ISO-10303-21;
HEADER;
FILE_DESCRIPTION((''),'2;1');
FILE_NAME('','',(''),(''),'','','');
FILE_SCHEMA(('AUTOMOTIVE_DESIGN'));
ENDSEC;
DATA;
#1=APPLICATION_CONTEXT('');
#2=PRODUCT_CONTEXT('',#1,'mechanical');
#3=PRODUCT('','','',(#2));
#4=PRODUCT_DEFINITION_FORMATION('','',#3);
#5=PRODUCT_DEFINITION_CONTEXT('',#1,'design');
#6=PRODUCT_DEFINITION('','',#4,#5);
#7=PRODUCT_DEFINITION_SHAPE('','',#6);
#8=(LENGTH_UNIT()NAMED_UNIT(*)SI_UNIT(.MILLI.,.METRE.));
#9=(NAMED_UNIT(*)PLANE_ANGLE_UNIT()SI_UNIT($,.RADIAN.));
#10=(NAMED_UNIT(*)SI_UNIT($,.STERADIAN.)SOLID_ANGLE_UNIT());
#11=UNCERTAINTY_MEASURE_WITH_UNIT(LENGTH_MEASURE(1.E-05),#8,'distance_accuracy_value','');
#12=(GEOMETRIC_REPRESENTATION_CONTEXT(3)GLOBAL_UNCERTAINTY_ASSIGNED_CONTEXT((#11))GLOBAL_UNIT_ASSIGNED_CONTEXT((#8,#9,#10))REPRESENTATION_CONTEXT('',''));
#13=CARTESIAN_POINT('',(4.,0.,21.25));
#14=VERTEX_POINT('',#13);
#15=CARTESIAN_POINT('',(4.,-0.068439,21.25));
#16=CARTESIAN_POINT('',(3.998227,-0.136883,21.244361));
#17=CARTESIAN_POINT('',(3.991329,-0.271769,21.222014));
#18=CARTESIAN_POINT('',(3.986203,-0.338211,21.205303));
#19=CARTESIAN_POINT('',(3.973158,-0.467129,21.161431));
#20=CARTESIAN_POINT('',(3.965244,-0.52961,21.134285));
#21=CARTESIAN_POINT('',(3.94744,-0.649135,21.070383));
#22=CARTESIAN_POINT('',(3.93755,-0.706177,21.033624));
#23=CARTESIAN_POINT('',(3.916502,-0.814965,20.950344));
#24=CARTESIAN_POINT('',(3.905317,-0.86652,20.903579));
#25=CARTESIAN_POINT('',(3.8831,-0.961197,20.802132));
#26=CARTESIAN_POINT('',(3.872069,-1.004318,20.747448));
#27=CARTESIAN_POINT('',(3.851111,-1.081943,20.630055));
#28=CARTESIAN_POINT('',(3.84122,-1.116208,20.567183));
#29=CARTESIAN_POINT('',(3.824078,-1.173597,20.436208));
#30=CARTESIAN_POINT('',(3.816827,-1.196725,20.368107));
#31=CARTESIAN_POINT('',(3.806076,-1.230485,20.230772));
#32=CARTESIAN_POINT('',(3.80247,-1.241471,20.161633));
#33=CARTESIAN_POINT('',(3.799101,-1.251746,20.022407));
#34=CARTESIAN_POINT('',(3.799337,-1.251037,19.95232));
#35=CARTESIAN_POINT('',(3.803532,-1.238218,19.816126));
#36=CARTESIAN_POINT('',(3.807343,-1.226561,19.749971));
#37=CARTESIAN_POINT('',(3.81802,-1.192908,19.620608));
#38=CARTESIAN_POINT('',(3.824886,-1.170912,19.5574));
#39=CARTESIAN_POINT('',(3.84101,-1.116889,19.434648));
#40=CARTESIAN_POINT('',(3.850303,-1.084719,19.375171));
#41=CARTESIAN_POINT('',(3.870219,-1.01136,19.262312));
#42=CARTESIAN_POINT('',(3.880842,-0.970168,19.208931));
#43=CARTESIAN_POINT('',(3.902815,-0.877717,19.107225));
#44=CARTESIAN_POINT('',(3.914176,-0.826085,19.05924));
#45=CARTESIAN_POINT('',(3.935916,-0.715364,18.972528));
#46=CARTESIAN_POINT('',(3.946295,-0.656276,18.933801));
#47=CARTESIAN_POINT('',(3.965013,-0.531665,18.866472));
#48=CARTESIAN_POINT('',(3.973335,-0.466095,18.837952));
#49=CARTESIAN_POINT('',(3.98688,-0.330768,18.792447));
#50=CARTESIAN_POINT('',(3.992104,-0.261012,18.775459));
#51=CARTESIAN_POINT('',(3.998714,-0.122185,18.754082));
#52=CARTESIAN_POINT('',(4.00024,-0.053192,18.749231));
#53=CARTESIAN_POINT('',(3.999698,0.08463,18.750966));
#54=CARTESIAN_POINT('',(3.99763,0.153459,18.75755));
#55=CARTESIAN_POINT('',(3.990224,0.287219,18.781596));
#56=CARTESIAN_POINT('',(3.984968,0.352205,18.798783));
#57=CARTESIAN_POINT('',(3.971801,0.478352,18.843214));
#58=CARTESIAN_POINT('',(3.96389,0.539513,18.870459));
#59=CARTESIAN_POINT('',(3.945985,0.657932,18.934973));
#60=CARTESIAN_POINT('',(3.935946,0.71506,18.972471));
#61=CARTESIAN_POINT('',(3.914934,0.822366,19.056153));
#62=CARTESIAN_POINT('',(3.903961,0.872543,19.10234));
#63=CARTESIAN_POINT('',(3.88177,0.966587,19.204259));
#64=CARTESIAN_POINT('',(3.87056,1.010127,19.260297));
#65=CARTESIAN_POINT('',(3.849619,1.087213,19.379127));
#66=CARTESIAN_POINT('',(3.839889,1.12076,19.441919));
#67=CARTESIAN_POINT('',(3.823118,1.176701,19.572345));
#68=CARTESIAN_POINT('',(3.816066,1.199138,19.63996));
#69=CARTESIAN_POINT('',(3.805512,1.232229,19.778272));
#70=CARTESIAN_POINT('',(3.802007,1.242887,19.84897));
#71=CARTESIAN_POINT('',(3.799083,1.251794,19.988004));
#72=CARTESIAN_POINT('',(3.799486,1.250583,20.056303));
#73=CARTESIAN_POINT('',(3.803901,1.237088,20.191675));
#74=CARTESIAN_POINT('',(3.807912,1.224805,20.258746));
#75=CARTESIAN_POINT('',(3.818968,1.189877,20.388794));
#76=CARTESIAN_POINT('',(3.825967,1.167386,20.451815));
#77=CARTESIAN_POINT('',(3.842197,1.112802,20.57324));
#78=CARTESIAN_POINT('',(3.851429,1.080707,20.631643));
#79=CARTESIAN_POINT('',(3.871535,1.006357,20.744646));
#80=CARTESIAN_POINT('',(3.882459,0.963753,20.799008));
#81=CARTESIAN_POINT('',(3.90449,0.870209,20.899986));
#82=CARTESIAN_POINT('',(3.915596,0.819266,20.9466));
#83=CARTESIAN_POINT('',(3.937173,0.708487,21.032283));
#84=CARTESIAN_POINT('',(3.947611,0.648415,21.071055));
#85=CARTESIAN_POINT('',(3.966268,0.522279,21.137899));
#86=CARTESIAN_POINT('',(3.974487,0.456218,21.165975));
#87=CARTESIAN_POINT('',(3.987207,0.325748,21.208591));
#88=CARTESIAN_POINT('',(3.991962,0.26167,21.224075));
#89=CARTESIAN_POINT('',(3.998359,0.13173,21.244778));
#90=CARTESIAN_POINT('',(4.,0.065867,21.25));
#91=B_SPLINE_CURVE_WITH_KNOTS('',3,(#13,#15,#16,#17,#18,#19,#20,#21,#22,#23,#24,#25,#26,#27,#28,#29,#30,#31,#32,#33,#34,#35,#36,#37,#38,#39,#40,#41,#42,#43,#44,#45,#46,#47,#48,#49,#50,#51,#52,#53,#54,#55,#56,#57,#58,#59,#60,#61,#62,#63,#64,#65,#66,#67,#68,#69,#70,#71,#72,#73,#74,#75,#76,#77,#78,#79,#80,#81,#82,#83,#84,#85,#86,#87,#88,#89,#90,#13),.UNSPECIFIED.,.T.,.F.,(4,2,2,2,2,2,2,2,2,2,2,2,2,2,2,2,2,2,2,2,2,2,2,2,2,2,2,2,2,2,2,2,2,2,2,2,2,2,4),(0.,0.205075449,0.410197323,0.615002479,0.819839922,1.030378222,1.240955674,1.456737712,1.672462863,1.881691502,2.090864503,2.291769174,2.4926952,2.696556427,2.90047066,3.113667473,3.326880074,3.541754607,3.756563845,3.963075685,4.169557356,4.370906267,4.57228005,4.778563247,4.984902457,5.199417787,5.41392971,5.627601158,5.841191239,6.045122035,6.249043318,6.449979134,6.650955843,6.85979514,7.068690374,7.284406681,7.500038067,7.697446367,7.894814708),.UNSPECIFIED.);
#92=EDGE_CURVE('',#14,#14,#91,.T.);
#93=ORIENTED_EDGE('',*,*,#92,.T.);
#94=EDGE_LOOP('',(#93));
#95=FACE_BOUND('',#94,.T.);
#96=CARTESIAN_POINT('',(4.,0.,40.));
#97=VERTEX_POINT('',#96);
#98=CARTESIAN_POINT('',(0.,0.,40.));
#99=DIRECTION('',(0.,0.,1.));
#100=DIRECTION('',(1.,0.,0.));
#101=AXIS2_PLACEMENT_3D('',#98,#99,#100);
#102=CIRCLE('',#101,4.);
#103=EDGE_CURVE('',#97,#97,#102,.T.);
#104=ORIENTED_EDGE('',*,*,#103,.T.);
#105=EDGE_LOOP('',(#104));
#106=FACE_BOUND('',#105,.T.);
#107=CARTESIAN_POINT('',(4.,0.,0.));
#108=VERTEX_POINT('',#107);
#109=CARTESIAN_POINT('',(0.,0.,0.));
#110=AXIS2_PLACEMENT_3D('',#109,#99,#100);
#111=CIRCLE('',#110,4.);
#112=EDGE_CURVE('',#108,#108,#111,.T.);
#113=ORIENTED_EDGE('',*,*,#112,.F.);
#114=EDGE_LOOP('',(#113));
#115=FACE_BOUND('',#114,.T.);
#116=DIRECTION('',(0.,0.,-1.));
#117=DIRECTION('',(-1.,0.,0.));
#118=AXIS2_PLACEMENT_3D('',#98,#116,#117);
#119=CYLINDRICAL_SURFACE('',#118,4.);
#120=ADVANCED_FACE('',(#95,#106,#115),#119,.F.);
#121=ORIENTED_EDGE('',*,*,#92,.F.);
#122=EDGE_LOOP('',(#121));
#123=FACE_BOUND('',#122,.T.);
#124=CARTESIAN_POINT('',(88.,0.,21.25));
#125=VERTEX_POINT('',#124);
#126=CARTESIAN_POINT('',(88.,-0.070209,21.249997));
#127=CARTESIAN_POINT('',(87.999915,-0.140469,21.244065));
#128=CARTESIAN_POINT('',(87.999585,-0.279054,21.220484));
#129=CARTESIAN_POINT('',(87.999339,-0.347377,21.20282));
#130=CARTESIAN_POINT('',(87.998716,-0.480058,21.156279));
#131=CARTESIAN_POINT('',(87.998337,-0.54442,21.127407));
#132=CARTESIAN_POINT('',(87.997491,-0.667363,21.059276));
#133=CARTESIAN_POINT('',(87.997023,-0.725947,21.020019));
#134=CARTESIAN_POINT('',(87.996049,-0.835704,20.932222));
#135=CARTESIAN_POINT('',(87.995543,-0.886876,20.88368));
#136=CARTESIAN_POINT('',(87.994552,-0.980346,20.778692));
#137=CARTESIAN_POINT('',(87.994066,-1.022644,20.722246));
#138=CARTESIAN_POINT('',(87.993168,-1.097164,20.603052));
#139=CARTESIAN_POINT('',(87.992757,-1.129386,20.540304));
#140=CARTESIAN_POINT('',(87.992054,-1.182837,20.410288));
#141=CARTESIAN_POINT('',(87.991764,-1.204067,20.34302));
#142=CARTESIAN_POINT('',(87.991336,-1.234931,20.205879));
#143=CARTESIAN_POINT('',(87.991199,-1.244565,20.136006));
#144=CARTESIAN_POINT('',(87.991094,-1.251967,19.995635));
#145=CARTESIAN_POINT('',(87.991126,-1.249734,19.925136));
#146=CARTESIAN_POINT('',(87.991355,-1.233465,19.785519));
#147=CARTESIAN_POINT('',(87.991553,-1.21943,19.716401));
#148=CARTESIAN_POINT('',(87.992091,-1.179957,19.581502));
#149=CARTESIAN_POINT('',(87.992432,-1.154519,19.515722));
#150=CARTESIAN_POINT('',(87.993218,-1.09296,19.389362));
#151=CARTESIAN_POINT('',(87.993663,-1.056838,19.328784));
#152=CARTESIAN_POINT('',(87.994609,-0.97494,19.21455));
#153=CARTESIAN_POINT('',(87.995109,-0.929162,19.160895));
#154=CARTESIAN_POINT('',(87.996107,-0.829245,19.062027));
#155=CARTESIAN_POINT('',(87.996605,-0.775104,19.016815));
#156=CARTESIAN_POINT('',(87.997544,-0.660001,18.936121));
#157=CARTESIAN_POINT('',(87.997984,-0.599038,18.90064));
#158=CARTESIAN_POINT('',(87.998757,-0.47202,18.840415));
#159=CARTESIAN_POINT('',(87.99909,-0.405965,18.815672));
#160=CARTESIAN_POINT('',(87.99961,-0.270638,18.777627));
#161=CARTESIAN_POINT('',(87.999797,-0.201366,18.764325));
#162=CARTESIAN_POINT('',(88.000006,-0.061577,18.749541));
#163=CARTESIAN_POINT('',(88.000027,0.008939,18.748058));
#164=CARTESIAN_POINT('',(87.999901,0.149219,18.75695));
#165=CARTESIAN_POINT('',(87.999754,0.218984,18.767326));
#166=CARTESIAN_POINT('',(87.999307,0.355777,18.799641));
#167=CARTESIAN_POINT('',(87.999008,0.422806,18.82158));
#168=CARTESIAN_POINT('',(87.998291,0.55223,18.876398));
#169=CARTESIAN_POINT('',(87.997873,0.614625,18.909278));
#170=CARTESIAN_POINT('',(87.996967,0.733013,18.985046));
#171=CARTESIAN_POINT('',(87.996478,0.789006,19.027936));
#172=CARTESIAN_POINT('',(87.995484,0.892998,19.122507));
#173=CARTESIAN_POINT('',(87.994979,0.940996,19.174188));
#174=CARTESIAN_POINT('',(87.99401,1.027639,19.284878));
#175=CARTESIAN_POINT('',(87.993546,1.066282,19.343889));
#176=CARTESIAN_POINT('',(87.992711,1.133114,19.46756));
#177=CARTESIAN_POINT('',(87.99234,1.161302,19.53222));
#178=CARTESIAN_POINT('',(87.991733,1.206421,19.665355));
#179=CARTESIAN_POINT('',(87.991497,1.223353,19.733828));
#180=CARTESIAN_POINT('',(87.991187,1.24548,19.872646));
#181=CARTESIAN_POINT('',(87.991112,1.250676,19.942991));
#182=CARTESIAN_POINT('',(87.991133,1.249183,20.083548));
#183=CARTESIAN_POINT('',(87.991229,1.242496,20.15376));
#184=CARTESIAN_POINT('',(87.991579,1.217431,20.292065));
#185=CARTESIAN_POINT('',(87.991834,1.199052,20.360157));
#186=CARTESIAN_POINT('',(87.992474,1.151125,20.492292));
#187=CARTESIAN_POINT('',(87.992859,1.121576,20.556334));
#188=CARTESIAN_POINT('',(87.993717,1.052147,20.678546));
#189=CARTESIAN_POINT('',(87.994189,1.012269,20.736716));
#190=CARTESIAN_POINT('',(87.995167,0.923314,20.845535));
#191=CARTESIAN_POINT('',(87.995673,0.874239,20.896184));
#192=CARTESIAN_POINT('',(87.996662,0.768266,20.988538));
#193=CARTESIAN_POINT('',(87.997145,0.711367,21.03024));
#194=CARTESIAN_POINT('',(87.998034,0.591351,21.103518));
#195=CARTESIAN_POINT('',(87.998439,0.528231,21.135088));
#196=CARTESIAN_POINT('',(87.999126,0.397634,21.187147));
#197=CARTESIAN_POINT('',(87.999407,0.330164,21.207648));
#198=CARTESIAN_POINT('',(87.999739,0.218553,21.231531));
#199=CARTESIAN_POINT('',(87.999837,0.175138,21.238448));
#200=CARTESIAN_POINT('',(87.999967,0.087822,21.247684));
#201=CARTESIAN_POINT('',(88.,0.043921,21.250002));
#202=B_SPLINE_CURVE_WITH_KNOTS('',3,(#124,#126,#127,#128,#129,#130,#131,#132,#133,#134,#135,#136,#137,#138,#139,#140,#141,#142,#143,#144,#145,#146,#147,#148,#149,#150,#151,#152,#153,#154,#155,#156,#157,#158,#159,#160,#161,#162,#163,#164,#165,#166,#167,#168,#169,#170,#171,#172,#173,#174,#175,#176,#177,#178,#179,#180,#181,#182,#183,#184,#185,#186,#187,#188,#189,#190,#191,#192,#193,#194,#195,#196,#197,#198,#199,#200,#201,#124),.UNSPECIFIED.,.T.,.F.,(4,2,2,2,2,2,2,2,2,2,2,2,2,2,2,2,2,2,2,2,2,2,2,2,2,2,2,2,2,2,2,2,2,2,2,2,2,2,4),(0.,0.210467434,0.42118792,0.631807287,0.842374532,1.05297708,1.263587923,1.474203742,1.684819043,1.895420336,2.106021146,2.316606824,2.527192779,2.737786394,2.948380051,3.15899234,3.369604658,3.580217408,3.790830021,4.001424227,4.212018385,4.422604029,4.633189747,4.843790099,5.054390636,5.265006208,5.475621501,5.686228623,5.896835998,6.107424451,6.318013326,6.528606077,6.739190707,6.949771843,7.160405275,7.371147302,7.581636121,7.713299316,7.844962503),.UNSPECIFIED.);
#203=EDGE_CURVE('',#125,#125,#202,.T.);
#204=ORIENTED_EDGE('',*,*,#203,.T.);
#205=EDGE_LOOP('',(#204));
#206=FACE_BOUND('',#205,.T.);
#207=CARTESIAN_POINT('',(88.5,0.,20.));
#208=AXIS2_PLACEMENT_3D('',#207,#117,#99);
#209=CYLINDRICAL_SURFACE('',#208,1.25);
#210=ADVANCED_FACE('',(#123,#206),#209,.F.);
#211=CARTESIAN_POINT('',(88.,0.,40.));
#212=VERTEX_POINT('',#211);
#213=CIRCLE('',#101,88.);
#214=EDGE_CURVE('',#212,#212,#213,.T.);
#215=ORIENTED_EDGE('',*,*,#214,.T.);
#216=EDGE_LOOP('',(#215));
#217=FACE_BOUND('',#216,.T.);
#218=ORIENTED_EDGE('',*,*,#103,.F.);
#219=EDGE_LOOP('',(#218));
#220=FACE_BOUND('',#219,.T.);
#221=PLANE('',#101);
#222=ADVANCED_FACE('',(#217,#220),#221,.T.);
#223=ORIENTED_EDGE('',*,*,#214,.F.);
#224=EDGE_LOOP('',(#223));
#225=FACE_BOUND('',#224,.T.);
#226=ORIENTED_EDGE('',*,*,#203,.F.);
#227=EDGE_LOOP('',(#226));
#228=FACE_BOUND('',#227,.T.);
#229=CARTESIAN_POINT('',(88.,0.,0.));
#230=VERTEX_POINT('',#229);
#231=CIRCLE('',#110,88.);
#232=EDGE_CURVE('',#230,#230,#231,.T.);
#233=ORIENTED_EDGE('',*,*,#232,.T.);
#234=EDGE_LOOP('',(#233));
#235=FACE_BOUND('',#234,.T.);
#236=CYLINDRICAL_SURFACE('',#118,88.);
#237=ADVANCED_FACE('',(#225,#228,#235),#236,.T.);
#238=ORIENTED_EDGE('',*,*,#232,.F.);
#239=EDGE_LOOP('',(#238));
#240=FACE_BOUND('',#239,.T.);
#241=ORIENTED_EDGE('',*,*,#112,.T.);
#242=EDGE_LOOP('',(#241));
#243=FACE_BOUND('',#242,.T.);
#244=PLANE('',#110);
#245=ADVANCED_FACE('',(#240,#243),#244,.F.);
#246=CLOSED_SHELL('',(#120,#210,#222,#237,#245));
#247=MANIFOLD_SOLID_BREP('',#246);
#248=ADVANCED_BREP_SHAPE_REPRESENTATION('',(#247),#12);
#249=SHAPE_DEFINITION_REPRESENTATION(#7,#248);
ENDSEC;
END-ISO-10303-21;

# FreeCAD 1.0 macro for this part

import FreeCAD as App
import Part
import Sketcher
from FreeCAD import Vector
Q = App.Units.Quantity

doc = App.newDocument("Part")
params = doc.addObject("Spreadsheet::Sheet", "Params")
for row, (alias, value) in enumerate([
    ("sketch1_diameter", "176 mm"),
    ("pad1_length", "40 mm"),
    ("sketch2_diameter", "8 mm"),
    ("pocket1_length", "40 mm"),
    ("sketch3_diameter", "2.5 mm"),
    ("pocket2_length", "85 mm"),
], start=1):
    params.set(f"A{row}", alias)
    params.set(f"B{row}", "=" + value)
    params.setAlias(f"B{row}", alias)

body = doc.addObject("PartDesign::Body", "Body")

sketch1 = doc.addObject("Sketcher::SketchObject", "Sketch")
body.addObject(sketch1)
sketch1.AttachmentSupport = (doc.XY_Plane, [""])
sketch1.MapMode = "FlatFace"
sketch1.addGeometry(Part.Circle(Vector(0, 0, 0), Vector(0, 0, 1), 88), False)
sketch1.addConstraint([
    Sketcher.Constraint("Coincident", 0, 3, -1, 1),
    Sketcher.Constraint("Diameter", 0, Q("176 mm")),
])
sketch1.setExpression("Constraints[1]", "Params.sketch1_diameter")
pad1 = doc.addObject("PartDesign::Pad", "Pad")
body.addObject(pad1)
pad1.Profile = sketch1
pad1.setExpression("Length", "Params.pad1_length")

sketch2 = doc.addObject("Sketcher::SketchObject", "Sketch001")
body.addObject(sketch2)
sketch2.AttachmentSupport = (doc.XY_Plane, [""])
sketch2.MapMode = "FlatFace"
sketch2.addGeometry(Part.Circle(Vector(0, 0, 0), Vector(0, 0, 1), 4), False)
sketch2.addConstraint([
    Sketcher.Constraint("Coincident", 0, 3, -1, 1),
    Sketcher.Constraint("Diameter", 0, Q("8 mm")),
])
sketch2.setExpression("Constraints[1]", "Params.sketch2_diameter")
pocket1 = doc.addObject("PartDesign::Pocket", "Pocket")
body.addObject(pocket1)
pocket1.Profile = sketch2
pocket1.setExpression("Length", "Params.pocket1_length")
pocket1.Reversed = True

sketch3 = doc.addObject("Sketcher::SketchObject", "Sketch002")
body.addObject(sketch3)
sketch3.AttachmentSupport = (doc.YZ_Plane, [""])
sketch3.MapMode = "FlatFace"
sketch3.AttachmentOffset = App.Placement(Vector(0, 0, 3.5), App.Rotation())
sketch3.addGeometry(Part.Circle(Vector(0, 20, 0), Vector(0, 0, 1), 1.2), False)
sketch3.addConstraint([
    Sketcher.Constraint("PointOnObject", 0, 3, -2),
    Sketcher.Constraint("Diameter", 0, Q("2.5 mm")),
    Sketcher.Constraint("DistanceY", -1, 1, 0, 3, Q("20 mm")),
])
sketch3.setExpression("Constraints[1]", "Params.sketch3_diameter")
pocket2 = doc.addObject("PartDesign::Pocket", "Pocket001")
body.addObject(pocket2)
pocket2.Profile = sketch3
pocket2.setExpression("Length", "Params.pocket2_length")
pocket2.Reversed = True

doc.recompute()
